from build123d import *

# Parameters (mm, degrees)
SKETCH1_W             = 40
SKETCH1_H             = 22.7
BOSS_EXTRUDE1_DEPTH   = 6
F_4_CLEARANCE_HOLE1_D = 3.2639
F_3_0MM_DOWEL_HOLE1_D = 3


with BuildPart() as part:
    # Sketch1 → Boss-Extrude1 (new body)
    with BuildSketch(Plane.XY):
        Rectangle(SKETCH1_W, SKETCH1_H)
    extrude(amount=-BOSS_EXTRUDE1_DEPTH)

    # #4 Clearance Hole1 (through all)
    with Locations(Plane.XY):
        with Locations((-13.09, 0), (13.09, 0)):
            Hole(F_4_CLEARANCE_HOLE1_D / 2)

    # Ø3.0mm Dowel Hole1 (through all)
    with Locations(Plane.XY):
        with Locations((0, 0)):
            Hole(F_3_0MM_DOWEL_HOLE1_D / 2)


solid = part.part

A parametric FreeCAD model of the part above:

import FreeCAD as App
import Part
import Sketcher
Q = App.Units.Quantity

doc = App.newDocument("Part")
body = doc.addObject("PartDesign::Body", "Body")

# Sketch on XY plane
sketch1 = body.newObject("Sketcher::SketchObject", "Sketch")
sketch1.AttachmentSupport = (doc.getObject("XY_Plane"), [""])
sketch1.MapMode = "FlatFace"
sketch1.addGeometry([
    Part.LineSegment(App.Vector(-20, 11, 0), App.Vector(-20, -11, 0)),
    Part.LineSegment(App.Vector(-20, -11, 0), App.Vector(20, -11, 0)),
    Part.LineSegment(App.Vector(20, -11, 0), App.Vector(20, 11, 0)),
    Part.LineSegment(App.Vector(20, 11, 0), App.Vector(-20, 11, 0)),
], False)
sketch1.addConstraint([
    Sketcher.Constraint("Coincident", 0, 2, 1, 1),
    Sketcher.Constraint("Coincident", 1, 2, 2, 1),
    Sketcher.Constraint("Coincident", 2, 2, 3, 1),
    Sketcher.Constraint("Coincident", 3, 2, 0, 1),
    Sketcher.Constraint("Vertical", 0),
    Sketcher.Constraint("Horizontal", 1),
    Sketcher.Constraint("Vertical", 2),
    Sketcher.Constraint("Horizontal", 3),
    Sketcher.Constraint("Symmetric", 0, 2, 2, 2, -1, 1),
    Sketcher.Constraint("DistanceX", 1, 1, 1, 2, Q("40 mm")),
    Sketcher.Constraint("DistanceY", 0, 2, 0, 1, Q("22.7 mm")),
])
pad1 = body.newObject("PartDesign::Pad", "Pad")
pad1.Profile = sketch1
pad1.Length = 6
pad1.Reversed = True

# Sketch on XY plane
sketch2 = body.newObject("Sketcher::SketchObject", "Sketch001")
sketch2.AttachmentSupport = (doc.getObject("XY_Plane"), [""])
sketch2.MapMode = "FlatFace"
sketch2.addGeometry([
    Part.Circle(App.Vector(-13.1, 0, 0), App.Vector(0, 0, 1), 1.6),
    Part.Circle(App.Vector(13.1, 0, 0), App.Vector(0, 0, 1), 1.6),
], False)
sketch2.addConstraint([
    Sketcher.Constraint("Equal", 0, 1),
    Sketcher.Constraint("Symmetric", 0, 3, 1, 3, -1, 1),
    Sketcher.Constraint("PointOnObject", 0, 3, -1),
    Sketcher.Constraint("Diameter", 0, Q("3.2639 mm")),
    Sketcher.Constraint("DistanceX", 0, 3, -1, 1, Q("13.09 mm")),
])
doc.recompute()
hole = body.newObject("PartDesign::Hole", "Hole")
hole.Profile = sketch2
hole.ThreadType = "None"
hole.Diameter = 3.2639
hole.DepthType = "ThroughAll"

# Sketch on XY plane
sketch3 = body.newObject("Sketcher::SketchObject", "Sketch002")
sketch3.AttachmentSupport = (doc.getObject("XY_Plane"), [""])
sketch3.MapMode = "FlatFace"
sketch3.addGeometry(Part.Circle(App.Vector(0, 0, 0), App.Vector(0, 0, 1), 1.5), False)
sketch3.addConstraint([
    Sketcher.Constraint("Coincident", 0, 3, -1, 1),
    Sketcher.Constraint("Diameter", 0, Q("3 mm")),
])
doc.recompute()
hole2 = body.newObject("PartDesign::Hole", "Hole001")
hole2.Profile = sketch3
hole2.ThreadType = "None"
hole2.Diameter = 3
hole2.DepthType = "ThroughAll"

doc.recompute()
